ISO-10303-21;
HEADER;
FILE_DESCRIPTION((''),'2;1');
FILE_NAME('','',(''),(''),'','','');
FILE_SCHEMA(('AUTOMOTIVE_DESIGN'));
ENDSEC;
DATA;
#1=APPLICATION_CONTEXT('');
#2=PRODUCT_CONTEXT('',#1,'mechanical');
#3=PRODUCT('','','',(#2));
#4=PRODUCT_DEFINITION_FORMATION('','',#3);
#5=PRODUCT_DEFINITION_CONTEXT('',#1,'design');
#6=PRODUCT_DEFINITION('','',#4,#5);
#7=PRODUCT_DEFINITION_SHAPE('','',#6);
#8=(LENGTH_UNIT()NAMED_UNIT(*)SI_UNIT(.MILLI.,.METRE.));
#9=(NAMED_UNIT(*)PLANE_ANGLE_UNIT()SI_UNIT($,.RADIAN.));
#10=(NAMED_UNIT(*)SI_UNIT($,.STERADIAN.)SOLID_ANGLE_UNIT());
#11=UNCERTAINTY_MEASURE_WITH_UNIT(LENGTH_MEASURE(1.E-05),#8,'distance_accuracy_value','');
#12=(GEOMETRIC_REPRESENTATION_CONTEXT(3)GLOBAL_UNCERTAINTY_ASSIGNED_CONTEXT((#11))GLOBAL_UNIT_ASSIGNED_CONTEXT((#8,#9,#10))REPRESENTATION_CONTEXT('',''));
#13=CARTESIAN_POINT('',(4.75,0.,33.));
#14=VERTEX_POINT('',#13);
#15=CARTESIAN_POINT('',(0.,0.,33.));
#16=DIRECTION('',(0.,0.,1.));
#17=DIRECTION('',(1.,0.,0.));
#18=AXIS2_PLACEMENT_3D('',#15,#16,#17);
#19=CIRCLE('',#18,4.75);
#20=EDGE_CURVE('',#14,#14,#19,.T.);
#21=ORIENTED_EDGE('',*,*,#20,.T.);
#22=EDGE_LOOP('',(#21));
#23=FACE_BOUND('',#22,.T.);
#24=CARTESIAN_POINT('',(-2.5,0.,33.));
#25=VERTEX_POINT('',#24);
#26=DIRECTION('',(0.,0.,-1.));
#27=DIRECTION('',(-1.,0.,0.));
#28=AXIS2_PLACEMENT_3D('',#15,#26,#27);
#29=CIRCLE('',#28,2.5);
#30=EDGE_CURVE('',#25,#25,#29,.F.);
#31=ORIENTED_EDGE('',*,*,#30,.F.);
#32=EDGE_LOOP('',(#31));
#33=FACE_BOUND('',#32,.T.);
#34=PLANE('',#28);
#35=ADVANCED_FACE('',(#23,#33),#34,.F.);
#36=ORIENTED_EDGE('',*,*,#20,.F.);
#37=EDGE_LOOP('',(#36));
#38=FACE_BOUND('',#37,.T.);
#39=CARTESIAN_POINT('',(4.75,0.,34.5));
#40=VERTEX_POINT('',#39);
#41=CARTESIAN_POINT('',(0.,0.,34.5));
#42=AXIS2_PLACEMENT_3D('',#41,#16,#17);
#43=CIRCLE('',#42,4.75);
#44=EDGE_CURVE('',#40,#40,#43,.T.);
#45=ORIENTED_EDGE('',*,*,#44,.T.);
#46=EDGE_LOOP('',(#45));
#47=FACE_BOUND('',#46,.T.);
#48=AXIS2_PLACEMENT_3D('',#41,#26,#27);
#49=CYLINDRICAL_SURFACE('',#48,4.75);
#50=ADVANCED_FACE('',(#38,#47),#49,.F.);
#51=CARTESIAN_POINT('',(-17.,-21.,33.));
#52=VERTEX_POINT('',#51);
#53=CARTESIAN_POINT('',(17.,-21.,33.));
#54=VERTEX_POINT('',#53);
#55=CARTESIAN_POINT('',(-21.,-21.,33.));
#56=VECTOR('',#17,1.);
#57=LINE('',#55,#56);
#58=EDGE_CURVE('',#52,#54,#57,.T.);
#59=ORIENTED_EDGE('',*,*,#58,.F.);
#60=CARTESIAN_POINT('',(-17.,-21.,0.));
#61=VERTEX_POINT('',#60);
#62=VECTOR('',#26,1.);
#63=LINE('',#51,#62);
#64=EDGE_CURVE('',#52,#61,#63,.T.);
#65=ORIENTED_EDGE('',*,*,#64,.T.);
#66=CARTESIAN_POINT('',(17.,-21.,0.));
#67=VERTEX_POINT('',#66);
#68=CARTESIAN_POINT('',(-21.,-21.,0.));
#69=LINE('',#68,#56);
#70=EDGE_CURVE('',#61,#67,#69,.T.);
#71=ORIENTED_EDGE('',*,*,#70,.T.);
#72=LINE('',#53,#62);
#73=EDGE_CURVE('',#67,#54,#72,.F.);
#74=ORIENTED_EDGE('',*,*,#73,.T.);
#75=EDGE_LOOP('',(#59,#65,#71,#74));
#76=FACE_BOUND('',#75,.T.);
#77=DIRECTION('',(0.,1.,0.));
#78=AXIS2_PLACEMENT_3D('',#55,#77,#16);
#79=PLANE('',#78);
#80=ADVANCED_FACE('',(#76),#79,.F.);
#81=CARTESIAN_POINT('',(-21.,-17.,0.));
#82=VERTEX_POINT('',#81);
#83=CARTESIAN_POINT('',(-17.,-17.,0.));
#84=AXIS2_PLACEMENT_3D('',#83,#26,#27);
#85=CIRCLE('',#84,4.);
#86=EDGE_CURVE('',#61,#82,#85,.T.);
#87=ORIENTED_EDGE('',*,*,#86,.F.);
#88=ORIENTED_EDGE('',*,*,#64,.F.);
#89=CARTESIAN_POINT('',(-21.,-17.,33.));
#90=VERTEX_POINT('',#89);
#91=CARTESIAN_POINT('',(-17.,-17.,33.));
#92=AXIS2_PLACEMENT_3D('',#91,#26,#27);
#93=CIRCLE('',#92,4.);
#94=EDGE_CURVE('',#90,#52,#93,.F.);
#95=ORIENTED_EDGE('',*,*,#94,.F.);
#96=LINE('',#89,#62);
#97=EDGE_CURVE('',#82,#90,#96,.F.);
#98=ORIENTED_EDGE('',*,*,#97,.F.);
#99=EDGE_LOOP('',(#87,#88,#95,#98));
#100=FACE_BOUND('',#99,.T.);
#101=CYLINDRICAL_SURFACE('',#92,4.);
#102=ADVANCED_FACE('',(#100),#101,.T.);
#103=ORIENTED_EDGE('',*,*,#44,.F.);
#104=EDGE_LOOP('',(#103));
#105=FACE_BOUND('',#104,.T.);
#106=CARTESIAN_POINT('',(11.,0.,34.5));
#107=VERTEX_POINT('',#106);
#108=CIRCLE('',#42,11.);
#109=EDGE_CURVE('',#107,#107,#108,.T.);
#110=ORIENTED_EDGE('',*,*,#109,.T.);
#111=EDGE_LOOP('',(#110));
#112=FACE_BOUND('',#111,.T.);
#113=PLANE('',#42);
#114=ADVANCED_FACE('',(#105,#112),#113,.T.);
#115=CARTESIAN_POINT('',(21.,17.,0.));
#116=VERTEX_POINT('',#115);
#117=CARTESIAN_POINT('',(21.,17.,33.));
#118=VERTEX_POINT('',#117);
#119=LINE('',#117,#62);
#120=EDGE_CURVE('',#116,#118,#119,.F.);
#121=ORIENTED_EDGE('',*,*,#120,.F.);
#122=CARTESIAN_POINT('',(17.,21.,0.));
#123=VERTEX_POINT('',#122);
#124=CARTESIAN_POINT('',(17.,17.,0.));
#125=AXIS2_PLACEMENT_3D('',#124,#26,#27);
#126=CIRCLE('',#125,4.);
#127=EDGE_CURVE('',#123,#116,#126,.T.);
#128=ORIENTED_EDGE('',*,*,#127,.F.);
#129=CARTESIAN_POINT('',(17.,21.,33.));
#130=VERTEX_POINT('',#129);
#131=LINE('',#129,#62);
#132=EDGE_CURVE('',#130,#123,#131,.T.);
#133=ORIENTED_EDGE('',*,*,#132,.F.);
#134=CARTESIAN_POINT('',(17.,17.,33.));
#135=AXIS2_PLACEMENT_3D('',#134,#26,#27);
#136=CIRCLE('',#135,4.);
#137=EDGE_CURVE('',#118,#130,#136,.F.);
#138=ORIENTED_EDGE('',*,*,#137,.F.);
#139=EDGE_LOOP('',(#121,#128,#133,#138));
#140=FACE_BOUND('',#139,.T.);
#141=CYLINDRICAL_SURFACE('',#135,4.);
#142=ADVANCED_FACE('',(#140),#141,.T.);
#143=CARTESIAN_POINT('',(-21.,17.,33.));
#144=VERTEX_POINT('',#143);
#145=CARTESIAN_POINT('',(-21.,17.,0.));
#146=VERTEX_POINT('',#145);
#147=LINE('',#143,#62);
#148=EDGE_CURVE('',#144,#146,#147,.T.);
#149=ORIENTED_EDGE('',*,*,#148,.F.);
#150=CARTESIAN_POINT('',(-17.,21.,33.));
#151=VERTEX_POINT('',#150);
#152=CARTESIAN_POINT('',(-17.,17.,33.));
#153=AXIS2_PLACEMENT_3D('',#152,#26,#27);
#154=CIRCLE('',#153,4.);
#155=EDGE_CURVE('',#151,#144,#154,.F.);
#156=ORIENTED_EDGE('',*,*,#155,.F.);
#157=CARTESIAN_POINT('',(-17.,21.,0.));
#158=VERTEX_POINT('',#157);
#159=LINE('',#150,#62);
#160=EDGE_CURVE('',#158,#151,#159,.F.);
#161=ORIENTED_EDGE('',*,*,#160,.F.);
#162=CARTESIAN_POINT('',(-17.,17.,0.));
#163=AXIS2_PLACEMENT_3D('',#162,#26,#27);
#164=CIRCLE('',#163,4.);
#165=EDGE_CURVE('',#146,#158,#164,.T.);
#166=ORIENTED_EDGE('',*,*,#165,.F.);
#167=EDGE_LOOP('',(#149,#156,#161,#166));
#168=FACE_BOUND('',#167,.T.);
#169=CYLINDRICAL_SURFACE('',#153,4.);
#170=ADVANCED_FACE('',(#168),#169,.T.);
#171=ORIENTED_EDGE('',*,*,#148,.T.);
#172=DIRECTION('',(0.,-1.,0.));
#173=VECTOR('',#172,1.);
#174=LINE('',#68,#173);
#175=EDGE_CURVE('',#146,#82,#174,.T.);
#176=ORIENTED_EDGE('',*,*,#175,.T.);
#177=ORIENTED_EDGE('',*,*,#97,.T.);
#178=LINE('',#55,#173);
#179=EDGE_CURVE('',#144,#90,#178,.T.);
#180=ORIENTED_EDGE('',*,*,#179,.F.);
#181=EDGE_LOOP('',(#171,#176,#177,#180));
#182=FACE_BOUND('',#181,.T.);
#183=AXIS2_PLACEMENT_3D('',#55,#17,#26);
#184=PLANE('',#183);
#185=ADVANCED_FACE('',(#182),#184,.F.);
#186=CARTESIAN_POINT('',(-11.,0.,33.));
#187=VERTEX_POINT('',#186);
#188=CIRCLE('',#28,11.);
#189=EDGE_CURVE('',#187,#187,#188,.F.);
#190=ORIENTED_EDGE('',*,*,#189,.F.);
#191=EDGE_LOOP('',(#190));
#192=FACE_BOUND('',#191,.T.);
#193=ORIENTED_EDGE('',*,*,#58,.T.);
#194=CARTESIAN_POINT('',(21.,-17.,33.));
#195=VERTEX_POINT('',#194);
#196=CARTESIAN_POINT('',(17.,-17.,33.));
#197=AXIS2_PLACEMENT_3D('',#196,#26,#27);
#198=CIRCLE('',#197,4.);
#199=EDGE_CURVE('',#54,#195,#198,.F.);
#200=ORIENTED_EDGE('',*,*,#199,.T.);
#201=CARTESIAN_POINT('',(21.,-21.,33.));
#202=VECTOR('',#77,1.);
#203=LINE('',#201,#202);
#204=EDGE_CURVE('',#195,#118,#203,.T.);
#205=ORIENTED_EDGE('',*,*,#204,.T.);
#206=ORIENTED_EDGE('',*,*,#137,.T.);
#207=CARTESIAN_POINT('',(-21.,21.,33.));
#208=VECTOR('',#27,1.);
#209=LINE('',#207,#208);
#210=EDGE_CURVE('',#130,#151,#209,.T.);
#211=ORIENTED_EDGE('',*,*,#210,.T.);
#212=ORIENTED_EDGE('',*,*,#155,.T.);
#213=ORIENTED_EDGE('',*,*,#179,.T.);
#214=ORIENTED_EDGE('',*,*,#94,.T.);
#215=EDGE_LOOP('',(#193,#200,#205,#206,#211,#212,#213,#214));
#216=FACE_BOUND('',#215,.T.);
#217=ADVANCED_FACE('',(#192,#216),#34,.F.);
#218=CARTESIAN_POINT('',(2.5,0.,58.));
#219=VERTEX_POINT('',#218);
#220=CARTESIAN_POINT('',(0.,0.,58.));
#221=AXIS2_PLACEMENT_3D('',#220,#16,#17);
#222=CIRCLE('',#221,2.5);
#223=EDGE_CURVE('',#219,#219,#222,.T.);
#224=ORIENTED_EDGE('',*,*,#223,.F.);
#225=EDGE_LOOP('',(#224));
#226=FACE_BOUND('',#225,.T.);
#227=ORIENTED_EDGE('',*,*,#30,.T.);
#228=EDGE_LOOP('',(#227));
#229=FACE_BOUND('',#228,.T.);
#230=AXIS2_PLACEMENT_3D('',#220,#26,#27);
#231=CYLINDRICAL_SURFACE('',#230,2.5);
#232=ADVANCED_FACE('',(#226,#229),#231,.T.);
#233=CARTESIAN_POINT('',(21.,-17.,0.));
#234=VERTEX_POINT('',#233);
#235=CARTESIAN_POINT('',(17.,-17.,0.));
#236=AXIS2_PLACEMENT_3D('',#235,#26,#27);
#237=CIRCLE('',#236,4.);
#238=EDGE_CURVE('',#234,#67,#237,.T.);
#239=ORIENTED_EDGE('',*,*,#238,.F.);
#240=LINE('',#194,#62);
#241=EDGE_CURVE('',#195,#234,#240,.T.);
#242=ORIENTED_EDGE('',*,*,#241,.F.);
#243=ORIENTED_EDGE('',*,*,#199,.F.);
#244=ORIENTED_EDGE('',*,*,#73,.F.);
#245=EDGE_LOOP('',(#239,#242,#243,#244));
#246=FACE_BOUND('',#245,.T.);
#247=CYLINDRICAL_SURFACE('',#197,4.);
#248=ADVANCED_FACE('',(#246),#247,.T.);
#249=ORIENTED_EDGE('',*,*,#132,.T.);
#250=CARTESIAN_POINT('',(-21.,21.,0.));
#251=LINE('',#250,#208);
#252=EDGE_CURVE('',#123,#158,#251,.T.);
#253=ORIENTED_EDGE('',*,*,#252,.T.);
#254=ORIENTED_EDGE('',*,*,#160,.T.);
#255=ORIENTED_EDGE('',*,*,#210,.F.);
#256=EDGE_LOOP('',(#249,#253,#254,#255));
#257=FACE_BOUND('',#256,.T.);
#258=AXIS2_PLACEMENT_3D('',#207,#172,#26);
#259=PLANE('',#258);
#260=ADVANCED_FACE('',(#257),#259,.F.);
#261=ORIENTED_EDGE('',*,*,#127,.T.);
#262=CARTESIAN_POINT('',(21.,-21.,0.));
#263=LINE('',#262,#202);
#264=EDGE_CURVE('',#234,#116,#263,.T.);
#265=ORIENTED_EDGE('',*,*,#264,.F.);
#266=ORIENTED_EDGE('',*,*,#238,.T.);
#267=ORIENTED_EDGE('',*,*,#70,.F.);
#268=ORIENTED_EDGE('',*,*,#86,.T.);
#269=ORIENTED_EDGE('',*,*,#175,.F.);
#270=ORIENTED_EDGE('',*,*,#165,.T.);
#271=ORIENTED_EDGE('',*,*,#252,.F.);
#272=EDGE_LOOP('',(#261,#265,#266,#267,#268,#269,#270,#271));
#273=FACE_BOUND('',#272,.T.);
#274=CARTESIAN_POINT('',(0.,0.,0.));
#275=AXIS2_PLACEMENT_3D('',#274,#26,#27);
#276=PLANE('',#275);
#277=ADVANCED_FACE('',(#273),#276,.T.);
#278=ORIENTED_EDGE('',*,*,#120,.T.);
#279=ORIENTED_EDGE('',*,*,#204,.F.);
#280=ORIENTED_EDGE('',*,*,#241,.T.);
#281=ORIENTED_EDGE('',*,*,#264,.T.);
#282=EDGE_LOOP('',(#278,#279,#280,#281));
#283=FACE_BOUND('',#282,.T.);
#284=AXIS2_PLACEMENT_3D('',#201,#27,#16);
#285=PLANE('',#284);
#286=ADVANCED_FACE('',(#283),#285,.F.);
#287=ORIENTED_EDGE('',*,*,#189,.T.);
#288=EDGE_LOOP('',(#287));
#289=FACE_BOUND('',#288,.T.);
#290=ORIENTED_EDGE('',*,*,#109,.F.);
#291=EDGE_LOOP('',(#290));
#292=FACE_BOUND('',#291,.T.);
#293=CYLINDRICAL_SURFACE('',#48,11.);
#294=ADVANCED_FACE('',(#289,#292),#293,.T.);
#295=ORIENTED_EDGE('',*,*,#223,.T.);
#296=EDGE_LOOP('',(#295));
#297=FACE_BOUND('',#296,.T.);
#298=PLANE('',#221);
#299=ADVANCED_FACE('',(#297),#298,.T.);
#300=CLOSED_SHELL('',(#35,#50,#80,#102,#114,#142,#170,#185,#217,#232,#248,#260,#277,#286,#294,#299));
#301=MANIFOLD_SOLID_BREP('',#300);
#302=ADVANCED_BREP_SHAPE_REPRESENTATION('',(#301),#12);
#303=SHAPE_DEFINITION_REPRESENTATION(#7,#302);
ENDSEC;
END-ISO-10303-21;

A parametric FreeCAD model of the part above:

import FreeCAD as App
import Part
import Sketcher

V = App.Vector


def edges_at(feature, points):
    """Names of the edges that pass closest to the given points."""
    edges = feature.Shape.Edges
    near = lambda p: min(range(len(edges)), key=lambda i: edges[i].distToShape(Part.Vertex(*p))[0])
    return sorted({f"Edge{near(p) + 1}" for p in points})

doc = App.newDocument("Part")
params = doc.addObject("Spreadsheet::Sheet", "Params")
for row, (alias, value) in enumerate([
    ("sketch1_width", "42 mm"),
    ("pad1_length", "33 mm"),
    ("fillet_radius", "4 mm"),
    ("sketch2_diameter", "22 mm"),
    ("sketch2_diameter2", "9.5 mm"),
    ("pad2_length", "1.5 mm"),
    ("sketch3_diameter", "5 mm"),
    ("pad3_length", "25 mm"),
], start=1):
    params.set(f"A{row}", alias)
    params.set(f"B{row}", "=" + value)
    params.setAlias(f"B{row}", alias)

body = doc.addObject("PartDesign::Body", "Body")

# Sketch on XY plane
sketch1 = body.newObject("Sketcher::SketchObject", "Sketch")
sketch1.AttachmentSupport = (doc.getObject("XY_Plane"), [""])
sketch1.MapMode = "FlatFace"
sketch1.addGeometry([
    Part.LineSegment(V(-21, 21, 0), V(-21, -21, 0)),
    Part.LineSegment(V(-21, -21, 0), V(21, -21, 0)),
    Part.LineSegment(V(21, -21, 0), V(21, 21, 0)),
    Part.LineSegment(V(21, 21, 0), V(-21, 21, 0)),
], False)
sketch1.addConstraint([
    Sketcher.Constraint("Coincident", 0, 2, 1, 1),
    Sketcher.Constraint("Coincident", 1, 2, 2, 1),
    Sketcher.Constraint("Coincident", 2, 2, 3, 1),
    Sketcher.Constraint("Coincident", 3, 2, 0, 1),
    Sketcher.Constraint("Vertical", 0),
    Sketcher.Constraint("Horizontal", 1),
    Sketcher.Constraint("Vertical", 2),
    Sketcher.Constraint("Horizontal", 3),
    Sketcher.Constraint("Symmetric", 0, 2, 2, 2, -1, 1),
    Sketcher.Constraint("Equal", 3, 0),
    Sketcher.Constraint("DistanceX", 1, 1, 1, 2, 42.0),
])
sketch1.setExpression("Constraints[10]", "Params.sketch1_width")
pad1 = body.newObject("PartDesign::Pad", "Pad")
pad1.Profile = sketch1
pad1.setExpression("Length", "Params.pad1_length")
doc.recompute()

fillet = body.newObject("PartDesign::Fillet", "Fillet")
fillet.Base = (pad1, edges_at(pad1, [
    (21, -21, 16.5),
    (-21, -21, 16.5),
    (-21, 21, 16.5),
    (21, 21, 16.5),
]))
fillet.setExpression("Radius", "Params.fillet_radius")

# Sketch on XY plane
sketch2 = body.newObject("Sketcher::SketchObject", "Sketch001")
sketch2.AttachmentSupport = (doc.getObject("XY_Plane"), [""])
sketch2.MapMode = "FlatFace"
sketch2.AttachmentOffset = App.Placement(V(0, 0, 33), App.Rotation())
sketch2.addGeometry([
    Part.Circle(V(0, 0, 0), V(0, 0, 1), 11),
    Part.Circle(V(0, 0, 0), V(0, 0, 1), 4.8),
], False)
sketch2.addConstraint([
    Sketcher.Constraint("Coincident", 0, 3, -1, 1),
    Sketcher.Constraint("Coincident", 1, 3, -1, 1),
    Sketcher.Constraint("Diameter", 0, 22.0),
    Sketcher.Constraint("Diameter", 1, 9.5),
])
sketch2.setExpression("Constraints[2]", "Params.sketch2_diameter")
sketch2.setExpression("Constraints[3]", "Params.sketch2_diameter2")
pad2 = body.newObject("PartDesign::Pad", "Pad001")
pad2.Profile = sketch2
pad2.setExpression("Length", "Params.pad2_length")

# Sketch on XY plane
sketch3 = body.newObject("Sketcher::SketchObject", "Sketch002")
sketch3.AttachmentSupport = (doc.getObject("XY_Plane"), [""])
sketch3.MapMode = "FlatFace"
sketch3.AttachmentOffset = App.Placement(V(0, 0, 33), App.Rotation())
sketch3.addGeometry(Part.Circle(V(0, 0, 0), V(0, 0, 1), 2.5), False)
sketch3.addConstraint([
    Sketcher.Constraint("Coincident", 0, 3, -1, 1),
    Sketcher.Constraint("Diameter", 0, 5.0),
])
sketch3.setExpression("Constraints[1]", "Params.sketch3_diameter")
pad3 = body.newObject("PartDesign::Pad", "Pad002")
pad3.Profile = sketch3
pad3.setExpression("Length", "Params.pad3_length")

doc.recompute()
